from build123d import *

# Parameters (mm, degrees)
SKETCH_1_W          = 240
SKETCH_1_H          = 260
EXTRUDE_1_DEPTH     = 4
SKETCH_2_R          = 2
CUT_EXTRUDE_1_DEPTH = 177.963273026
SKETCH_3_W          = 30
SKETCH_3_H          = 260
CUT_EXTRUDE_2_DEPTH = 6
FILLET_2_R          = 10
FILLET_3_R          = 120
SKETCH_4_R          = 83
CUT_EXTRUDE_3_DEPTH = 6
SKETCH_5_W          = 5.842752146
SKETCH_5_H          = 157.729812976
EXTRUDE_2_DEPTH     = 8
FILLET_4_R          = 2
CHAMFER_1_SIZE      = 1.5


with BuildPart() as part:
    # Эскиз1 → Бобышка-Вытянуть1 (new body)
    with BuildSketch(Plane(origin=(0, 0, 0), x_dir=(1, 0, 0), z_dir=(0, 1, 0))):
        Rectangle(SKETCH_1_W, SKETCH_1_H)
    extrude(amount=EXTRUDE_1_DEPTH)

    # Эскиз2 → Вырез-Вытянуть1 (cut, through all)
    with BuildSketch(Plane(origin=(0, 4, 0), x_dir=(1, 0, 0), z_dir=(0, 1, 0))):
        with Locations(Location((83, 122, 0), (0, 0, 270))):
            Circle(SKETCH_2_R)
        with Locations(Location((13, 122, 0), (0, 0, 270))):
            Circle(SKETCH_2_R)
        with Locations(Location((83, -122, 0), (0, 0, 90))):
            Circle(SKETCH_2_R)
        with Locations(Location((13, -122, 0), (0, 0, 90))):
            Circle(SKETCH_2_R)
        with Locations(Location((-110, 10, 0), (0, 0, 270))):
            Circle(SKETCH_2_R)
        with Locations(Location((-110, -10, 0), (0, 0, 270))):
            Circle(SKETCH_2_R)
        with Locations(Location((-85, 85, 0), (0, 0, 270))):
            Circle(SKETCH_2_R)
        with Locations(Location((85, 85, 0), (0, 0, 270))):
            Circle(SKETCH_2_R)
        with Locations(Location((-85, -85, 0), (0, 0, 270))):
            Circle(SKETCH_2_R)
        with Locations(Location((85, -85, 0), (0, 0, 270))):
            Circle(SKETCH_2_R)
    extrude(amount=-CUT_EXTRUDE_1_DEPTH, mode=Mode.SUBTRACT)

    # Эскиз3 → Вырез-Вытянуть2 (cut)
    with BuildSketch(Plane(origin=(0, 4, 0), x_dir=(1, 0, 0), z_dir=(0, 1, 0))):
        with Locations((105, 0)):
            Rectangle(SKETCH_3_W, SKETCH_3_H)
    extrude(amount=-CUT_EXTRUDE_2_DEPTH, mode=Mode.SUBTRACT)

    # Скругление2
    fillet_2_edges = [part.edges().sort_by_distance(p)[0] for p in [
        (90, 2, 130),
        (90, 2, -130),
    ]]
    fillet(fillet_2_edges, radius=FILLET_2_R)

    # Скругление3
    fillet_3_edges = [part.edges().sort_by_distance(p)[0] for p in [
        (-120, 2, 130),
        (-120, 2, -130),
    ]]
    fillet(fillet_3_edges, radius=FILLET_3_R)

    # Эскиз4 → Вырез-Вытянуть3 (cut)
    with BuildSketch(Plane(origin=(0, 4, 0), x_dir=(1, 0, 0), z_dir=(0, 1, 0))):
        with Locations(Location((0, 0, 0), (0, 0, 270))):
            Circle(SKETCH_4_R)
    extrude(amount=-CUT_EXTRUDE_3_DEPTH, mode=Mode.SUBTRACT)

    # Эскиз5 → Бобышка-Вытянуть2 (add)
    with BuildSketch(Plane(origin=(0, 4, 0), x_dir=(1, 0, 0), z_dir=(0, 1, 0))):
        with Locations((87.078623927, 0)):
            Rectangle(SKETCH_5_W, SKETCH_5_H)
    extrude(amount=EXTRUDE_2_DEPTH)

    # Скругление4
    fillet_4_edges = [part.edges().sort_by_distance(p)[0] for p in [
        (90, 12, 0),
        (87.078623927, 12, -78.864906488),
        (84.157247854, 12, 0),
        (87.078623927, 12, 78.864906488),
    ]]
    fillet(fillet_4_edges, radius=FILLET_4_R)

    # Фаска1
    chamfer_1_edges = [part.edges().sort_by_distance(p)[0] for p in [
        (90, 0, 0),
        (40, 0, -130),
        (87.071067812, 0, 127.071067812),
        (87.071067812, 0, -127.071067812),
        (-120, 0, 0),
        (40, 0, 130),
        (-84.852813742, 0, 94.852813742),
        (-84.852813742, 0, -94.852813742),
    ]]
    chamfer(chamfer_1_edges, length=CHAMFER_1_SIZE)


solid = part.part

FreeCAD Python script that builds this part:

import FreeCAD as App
import Part
import Sketcher
Q = App.Units.Quantity


def edges_at(feature, points):
    """Names of the edges that pass closest to the given points."""
    edges = feature.Shape.Edges
    near = lambda p: min(range(len(edges)), key=lambda i: edges[i].distToShape(Part.Vertex(*p))[0])
    return sorted({f"Edge{near(p) + 1}" for p in points})


def add_polygon(sketch, points):
    """Adds a closed chain of lines whose ends are joined by coincident constraints."""
    first, n = sketch.GeometryCount, len(points)
    for a, b in zip(points, points[1:] + points[:1]):
        sketch.addGeometry(Part.LineSegment(App.Vector(*a, 0), App.Vector(*b, 0)), False)
    for i in range(n):
        sketch.addConstraint(Sketcher.Constraint("Coincident", first + i, 2, first + (i + 1) % n, 1))

doc = App.newDocument("Part")
body = doc.addObject("PartDesign::Body", "Body")

# Sketch on XZ plane
sketch1 = body.newObject("Sketcher::SketchObject", "Sketch")
sketch1.AttachmentSupport = (doc.getObject("XZ_Plane"), [""])
sketch1.MapMode = "FlatFace"
add_polygon(sketch1, [(-120, -130), (-120, 130), (120, 130), (120, -130)])  # lines 0-3
sketch1.addConstraint([
    Sketcher.Constraint("Vertical", 0),
    Sketcher.Constraint("Horizontal", 1),
    Sketcher.Constraint("Vertical", 2),
    Sketcher.Constraint("Horizontal", 3),
    Sketcher.Constraint("Symmetric", 0, 2, 2, 2, -1, 1),
    Sketcher.Constraint("DistanceX", 1, 1, 1, 2, Q("240 mm")),
    Sketcher.Constraint("DistanceY", 0, 1, 0, 2, Q("260 mm")),
])
pad1 = body.newObject("PartDesign::Pad", "Pad")
pad1.Profile = sketch1
pad1.Length = 4
pad1.Reversed = True

# Sketch on XZ plane
sketch2 = body.newObject("Sketcher::SketchObject", "Sketch001")
sketch2.AttachmentSupport = (doc.getObject("XZ_Plane"), [""])
sketch2.MapMode = "FlatFace"
sketch2.AttachmentOffset = App.Placement(App.Vector(0, 0, -4), App.Rotation())
sketch2.addGeometry([
    Part.Circle(App.Vector(83, -122, 0), App.Vector(0, 0, 1), 2),  # 0
    Part.Circle(App.Vector(13, -122, 0), App.Vector(0, 0, 1), 2),  # 1
    Part.Circle(App.Vector(83, 122, 0), App.Vector(0, 0, 1), 2),  # 2
    Part.Circle(App.Vector(13, 122, 0), App.Vector(0, 0, 1), 2),  # 3
    Part.Circle(App.Vector(-110, -10, 0), App.Vector(0, 0, 1), 2),  # 4
    Part.Circle(App.Vector(-110, 10, 0), App.Vector(0, 0, 1), 2),  # 5
    Part.Circle(App.Vector(-85, -85, 0), App.Vector(0, 0, 1), 2),  # 6
    Part.Circle(App.Vector(85, -85, 0), App.Vector(0, 0, 1), 2),  # 7
    Part.Circle(App.Vector(-85, 85, 0), App.Vector(0, 0, 1), 2),  # 8
    Part.Circle(App.Vector(85, 85, 0), App.Vector(0, 0, 1), 2),  # 9
], False)
sketch2.addConstraint([
    Sketcher.Constraint("Equal", 0, 1),
    Sketcher.Constraint("Equal", 1, 2),
    Sketcher.Constraint("Equal", 2, 3),
    Sketcher.Constraint("Equal", 3, 4),
    Sketcher.Constraint("Equal", 4, 5),
    Sketcher.Constraint("Equal", 5, 6),
    Sketcher.Constraint("Equal", 6, 7),
    Sketcher.Constraint("Equal", 7, 8),
    Sketcher.Constraint("Equal", 8, 9),
    Sketcher.Constraint("Symmetric", 7, 3, 8, 3, -1, 1),
    Sketcher.Constraint("Symmetric", 6, 3, 9, 3, -1, 1),
    Sketcher.Constraint("Symmetric", 6, 3, 7, 3, -2),
    Sketcher.Constraint("Symmetric", 0, 3, 2, 3, -1),
    Sketcher.Constraint("Symmetric", 1, 3, 3, 3, -1),
    Sketcher.Constraint("Symmetric", 4, 3, 5, 3, -1),
    Sketcher.Constraint("Horizontal", 0, 3, 1, 3),
    Sketcher.Constraint("Diameter", 0, Q("4 mm")),
    Sketcher.Constraint("DistanceX", -1, 1, 0, 3, Q("83 mm")),
    Sketcher.Constraint("DistanceY", 0, 3, -1, 1, Q("122 mm")),
    Sketcher.Constraint("DistanceX", -1, 1, 1, 3, Q("13 mm")),
    Sketcher.Constraint("DistanceX", 4, 3, -1, 1, Q("110 mm")),
    Sketcher.Constraint("DistanceY", 4, 3, -1, 1, Q("10 mm")),
    Sketcher.Constraint("DistanceX", 6, 3, -1, 1, Q("85 mm")),
    Sketcher.Constraint("DistanceY", 6, 3, -1, 1, Q("85 mm")),
])
pocket1 = body.newObject("PartDesign::Pocket", "Pocket")
pocket1.Profile = sketch2
pocket1.Type = "ThroughAll"
pocket1.Reversed = True

# Sketch on XZ plane
sketch3 = body.newObject("Sketcher::SketchObject", "Sketch002")
sketch3.AttachmentSupport = (doc.getObject("XZ_Plane"), [""])
sketch3.MapMode = "FlatFace"
sketch3.AttachmentOffset = App.Placement(App.Vector(0, 0, -4), App.Rotation())
add_polygon(sketch3, [(90, -130), (90, 130), (120, 130), (120, -130)])  # lines 0-3
sketch3.addConstraint([
    Sketcher.Constraint("Vertical", 0),
    Sketcher.Constraint("Horizontal", 1),
    Sketcher.Constraint("Vertical", 2),
    Sketcher.Constraint("Horizontal", 3),
    Sketcher.Constraint("DistanceX", 1, 1, 1, 2, Q("30 mm")),
    Sketcher.Constraint("DistanceY", 0, 1, 0, 2, Q("260 mm")),
    Sketcher.Constraint("DistanceX", -1, 1, 0, 2, Q("90 mm")),
    Sketcher.Constraint("DistanceY", -1, 1, 0, 2, Q("130 mm")),
])
pocket2 = body.newObject("PartDesign::Pocket", "Pocket001")
pocket2.Profile = sketch3
pocket2.Length = 6
pocket2.Reversed = True
doc.recompute()

fillet = body.newObject("PartDesign::Fillet", "Fillet")
fillet.Base = (pocket2, edges_at(pocket2, [(90, 2, 130), (90, 2, -130)]))
fillet.Radius = 10
doc.recompute()

fillet2 = body.newObject("PartDesign::Fillet", "Fillet001")
fillet2.Base = (fillet, edges_at(fillet, [(-120, 2, 130), (-120, 2, -130)]))
fillet2.Radius = 120

# Sketch on XZ plane
sketch4 = body.newObject("Sketcher::SketchObject", "Sketch003")
sketch4.AttachmentSupport = (doc.getObject("XZ_Plane"), [""])
sketch4.MapMode = "FlatFace"
sketch4.AttachmentOffset = App.Placement(App.Vector(0, 0, -4), App.Rotation())
sketch4.addGeometry(Part.Circle(App.Vector(0, 0, 0), App.Vector(0, 0, 1), 83), False)
sketch4.addConstraint([
    Sketcher.Constraint("Coincident", 0, 3, -1, 1),
    Sketcher.Constraint("Diameter", 0, Q("166 mm")),
])
pocket3 = body.newObject("PartDesign::Pocket", "Pocket002")
pocket3.Profile = sketch4
pocket3.Length = 6
pocket3.Reversed = True

# Sketch on XZ plane
sketch5 = body.newObject("Sketcher::SketchObject", "Sketch004")
sketch5.AttachmentSupport = (doc.getObject("XZ_Plane"), [""])
sketch5.MapMode = "FlatFace"
sketch5.AttachmentOffset = App.Placement(App.Vector(0, 0, -4), App.Rotation())
add_polygon(sketch5, [(84, -79), (84, 79), (90, 79), (90, -79)])  # lines 0-3
sketch5.addConstraint([
    Sketcher.Constraint("Vertical", 0),
    Sketcher.Constraint("Horizontal", 1),
    Sketcher.Constraint("Vertical", 2),
    Sketcher.Constraint("Horizontal", 3),
    Sketcher.Constraint("DistanceX", -1, 1, 1, 2, Q("90 mm")),
    Sketcher.Constraint("DistanceX", 1, 1, 1, 2, Q("5.842752 mm")),
    Sketcher.Constraint("DistanceY", 0, 1, 0, 2, Q("157.729813 mm")),
    Sketcher.Constraint("DistanceY", -1, 1, 0, 2, Q("78.864906 mm")),
])
pad2 = body.newObject("PartDesign::Pad", "Pad001")
pad2.Profile = sketch5
pad2.Length = 8
pad2.Reversed = True
doc.recompute()

fillet3 = body.newObject("PartDesign::Fillet", "Fillet002")
fillet3.Base = (pad2, edges_at(pad2, [
    (90, 12, 0),
    (87.079, 12, -78.865),
    (84.157, 12, 0),
    (87.079, 12, 78.865),
]))
fillet3.Radius = 2
doc.recompute()

chamfer = body.newObject("PartDesign::Chamfer", "Chamfer")
chamfer.Base = (fillet3, edges_at(fillet3, [
    (90, 0, 0),
    (40, 0, -130),
    (87.071, 0, 127.071),
    (87.071, 0, -127.071),
    (-120, 0, 0),
    (40, 0, 130),
    (-84.853, 0, 94.853),
    (-84.853, 0, -94.853),
]))
chamfer.Size = 1.5

doc.recompute()
